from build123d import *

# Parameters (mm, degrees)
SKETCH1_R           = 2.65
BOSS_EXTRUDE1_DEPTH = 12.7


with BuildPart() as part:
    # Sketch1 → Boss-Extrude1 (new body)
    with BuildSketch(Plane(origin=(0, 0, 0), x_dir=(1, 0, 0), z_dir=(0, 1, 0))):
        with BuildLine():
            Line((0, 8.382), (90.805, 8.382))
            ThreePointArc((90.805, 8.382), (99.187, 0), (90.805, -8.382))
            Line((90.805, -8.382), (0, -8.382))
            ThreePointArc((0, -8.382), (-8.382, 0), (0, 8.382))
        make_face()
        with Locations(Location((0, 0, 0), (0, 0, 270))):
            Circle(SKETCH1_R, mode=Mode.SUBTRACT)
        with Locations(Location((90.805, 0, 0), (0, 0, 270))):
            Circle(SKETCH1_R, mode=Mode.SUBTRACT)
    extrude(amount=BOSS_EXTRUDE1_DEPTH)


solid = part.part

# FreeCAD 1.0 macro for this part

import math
import FreeCAD as App
import Part
import Sketcher
from FreeCAD import Vector
Q = App.Units.Quantity

doc = App.newDocument("Part")
body = doc.addObject("PartDesign::Body", "Body")

# Sketch on XZ plane
sketch1 = body.newObject("Sketcher::SketchObject", "Sketch")
sketch1.AttachmentSupport = (doc.getObject("XZ_Plane"), [""])
sketch1.MapMode = "FlatFace"
sketch1.addGeometry([
    Part.LineSegment(Vector(90.805, -8.382, 0), Vector(0, -8.382, 0)),  # 0
    Part.ArcOfCircle(Part.Circle(Vector(0, 0, 0), Vector(0, 0, 1), 8.382), math.radians(90), math.radians(270)),  # 1
    Part.LineSegment(Vector(0, 8.382, 0), Vector(90.805, 8.382, 0)),  # 2
    Part.ArcOfCircle(Part.Circle(Vector(90.805, 0, 0), Vector(0, 0, 1), 8.382), math.radians(-90), math.radians(90)),  # 3
    Part.Circle(Vector(90.805, 0, 0), Vector(0, 0, 1), 2.65),  # 4
    Part.Circle(Vector(0, 0, 0), Vector(0, 0, 1), 2.65),  # 5
], False)
sketch1.addConstraint([
    Sketcher.Constraint("Tangent", 0, 2, 1, 2),
    Sketcher.Constraint("Tangent", 1, 1, 2, 1),
    Sketcher.Constraint("Tangent", 2, 2, 3, 2),
    Sketcher.Constraint("Tangent", 3, 1, 0, 1),
    Sketcher.Constraint("Horizontal", 0),
    Sketcher.Constraint("Horizontal", 2),
    Sketcher.Constraint("Coincident", 1, 3, -1, 1),
    Sketcher.Constraint("Coincident", 5, 3, -1, 1),
    Sketcher.Constraint("Coincident", 4, 3, 3, 3),
    Sketcher.Constraint("Equal", 4, 5),
    Sketcher.Constraint("Radius", 1, Q("0.33 in")),
    Sketcher.Constraint("Diameter", 4, Q("5.3 mm")),
    Sketcher.Constraint("DistanceX", 0, 2, 0, 1, Q("3.575 in")),
])
pad1 = body.newObject("PartDesign::Pad", "Pad")
pad1.Profile = sketch1
pad1.Length = Q("0.5 in")
pad1.Reversed = True

doc.recompute()
